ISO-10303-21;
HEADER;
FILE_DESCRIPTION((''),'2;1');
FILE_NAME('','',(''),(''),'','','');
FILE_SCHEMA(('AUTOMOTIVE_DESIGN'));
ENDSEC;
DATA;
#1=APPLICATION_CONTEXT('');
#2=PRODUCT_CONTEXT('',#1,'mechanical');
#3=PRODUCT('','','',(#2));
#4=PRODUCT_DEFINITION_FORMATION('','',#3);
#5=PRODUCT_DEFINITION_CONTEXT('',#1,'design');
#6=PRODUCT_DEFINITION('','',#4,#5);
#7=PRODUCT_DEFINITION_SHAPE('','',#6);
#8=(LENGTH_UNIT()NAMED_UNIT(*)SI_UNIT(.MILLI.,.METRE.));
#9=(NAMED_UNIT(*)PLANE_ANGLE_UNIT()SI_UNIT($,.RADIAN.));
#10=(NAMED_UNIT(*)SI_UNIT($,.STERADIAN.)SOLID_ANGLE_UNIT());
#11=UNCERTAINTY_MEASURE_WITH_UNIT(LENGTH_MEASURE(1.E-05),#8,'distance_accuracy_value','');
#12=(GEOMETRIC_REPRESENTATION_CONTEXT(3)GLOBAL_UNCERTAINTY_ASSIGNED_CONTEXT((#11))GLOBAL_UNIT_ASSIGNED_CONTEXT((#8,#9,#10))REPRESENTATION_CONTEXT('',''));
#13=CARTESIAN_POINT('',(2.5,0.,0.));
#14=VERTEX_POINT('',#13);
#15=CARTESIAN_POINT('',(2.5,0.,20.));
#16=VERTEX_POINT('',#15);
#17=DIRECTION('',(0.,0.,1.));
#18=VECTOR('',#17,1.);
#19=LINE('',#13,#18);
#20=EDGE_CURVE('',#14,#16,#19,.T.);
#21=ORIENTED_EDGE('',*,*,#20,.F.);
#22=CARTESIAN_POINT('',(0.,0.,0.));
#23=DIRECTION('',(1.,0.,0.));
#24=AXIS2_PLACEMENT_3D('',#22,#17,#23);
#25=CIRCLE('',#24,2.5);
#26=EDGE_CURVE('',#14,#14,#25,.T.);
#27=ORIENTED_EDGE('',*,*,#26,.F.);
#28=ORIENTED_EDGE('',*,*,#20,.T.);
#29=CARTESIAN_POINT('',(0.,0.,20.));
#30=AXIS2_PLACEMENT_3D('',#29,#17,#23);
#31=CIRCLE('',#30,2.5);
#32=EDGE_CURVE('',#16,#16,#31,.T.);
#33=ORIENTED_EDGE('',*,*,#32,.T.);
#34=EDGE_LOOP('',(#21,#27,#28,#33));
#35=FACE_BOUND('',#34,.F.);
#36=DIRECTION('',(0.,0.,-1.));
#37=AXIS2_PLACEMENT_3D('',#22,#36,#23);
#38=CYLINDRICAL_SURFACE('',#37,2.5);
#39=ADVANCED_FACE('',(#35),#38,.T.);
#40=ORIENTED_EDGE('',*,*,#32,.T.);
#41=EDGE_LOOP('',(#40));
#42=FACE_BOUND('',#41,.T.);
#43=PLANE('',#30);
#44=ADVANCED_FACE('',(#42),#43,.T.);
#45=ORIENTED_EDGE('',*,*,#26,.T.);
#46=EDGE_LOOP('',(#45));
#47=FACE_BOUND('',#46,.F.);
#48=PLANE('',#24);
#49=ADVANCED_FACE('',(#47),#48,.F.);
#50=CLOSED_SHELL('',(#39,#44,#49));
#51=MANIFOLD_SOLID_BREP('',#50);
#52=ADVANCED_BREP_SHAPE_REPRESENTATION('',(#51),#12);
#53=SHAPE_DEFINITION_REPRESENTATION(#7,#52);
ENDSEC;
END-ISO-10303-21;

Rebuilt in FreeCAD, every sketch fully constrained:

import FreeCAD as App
import Part
import Sketcher

V = App.Vector
Q = App.Units.Quantity

doc = App.newDocument("Part")
body = doc.addObject("PartDesign::Body", "Body")

# Sketch on XY plane
sketch1 = doc.addObject("Sketcher::SketchObject", "Sketch")
body.addObject(sketch1)
sketch1.AttachmentSupport = (doc.XY_Plane, [""])
sketch1.MapMode = "FlatFace"
sketch1.addGeometry(Part.Circle(V(0, 0, 0), V(0, 0, 1), 2.5), False)
sketch1.addConstraint([
    Sketcher.Constraint("Coincident", 0, 3, -1, 1),
    Sketcher.Constraint("Diameter", 0, Q("5 mm")),
])
pad1 = doc.addObject("PartDesign::Pad", "Pad")
body.addObject(pad1)
pad1.Profile = sketch1
pad1.Length = 20

doc.recompute()
